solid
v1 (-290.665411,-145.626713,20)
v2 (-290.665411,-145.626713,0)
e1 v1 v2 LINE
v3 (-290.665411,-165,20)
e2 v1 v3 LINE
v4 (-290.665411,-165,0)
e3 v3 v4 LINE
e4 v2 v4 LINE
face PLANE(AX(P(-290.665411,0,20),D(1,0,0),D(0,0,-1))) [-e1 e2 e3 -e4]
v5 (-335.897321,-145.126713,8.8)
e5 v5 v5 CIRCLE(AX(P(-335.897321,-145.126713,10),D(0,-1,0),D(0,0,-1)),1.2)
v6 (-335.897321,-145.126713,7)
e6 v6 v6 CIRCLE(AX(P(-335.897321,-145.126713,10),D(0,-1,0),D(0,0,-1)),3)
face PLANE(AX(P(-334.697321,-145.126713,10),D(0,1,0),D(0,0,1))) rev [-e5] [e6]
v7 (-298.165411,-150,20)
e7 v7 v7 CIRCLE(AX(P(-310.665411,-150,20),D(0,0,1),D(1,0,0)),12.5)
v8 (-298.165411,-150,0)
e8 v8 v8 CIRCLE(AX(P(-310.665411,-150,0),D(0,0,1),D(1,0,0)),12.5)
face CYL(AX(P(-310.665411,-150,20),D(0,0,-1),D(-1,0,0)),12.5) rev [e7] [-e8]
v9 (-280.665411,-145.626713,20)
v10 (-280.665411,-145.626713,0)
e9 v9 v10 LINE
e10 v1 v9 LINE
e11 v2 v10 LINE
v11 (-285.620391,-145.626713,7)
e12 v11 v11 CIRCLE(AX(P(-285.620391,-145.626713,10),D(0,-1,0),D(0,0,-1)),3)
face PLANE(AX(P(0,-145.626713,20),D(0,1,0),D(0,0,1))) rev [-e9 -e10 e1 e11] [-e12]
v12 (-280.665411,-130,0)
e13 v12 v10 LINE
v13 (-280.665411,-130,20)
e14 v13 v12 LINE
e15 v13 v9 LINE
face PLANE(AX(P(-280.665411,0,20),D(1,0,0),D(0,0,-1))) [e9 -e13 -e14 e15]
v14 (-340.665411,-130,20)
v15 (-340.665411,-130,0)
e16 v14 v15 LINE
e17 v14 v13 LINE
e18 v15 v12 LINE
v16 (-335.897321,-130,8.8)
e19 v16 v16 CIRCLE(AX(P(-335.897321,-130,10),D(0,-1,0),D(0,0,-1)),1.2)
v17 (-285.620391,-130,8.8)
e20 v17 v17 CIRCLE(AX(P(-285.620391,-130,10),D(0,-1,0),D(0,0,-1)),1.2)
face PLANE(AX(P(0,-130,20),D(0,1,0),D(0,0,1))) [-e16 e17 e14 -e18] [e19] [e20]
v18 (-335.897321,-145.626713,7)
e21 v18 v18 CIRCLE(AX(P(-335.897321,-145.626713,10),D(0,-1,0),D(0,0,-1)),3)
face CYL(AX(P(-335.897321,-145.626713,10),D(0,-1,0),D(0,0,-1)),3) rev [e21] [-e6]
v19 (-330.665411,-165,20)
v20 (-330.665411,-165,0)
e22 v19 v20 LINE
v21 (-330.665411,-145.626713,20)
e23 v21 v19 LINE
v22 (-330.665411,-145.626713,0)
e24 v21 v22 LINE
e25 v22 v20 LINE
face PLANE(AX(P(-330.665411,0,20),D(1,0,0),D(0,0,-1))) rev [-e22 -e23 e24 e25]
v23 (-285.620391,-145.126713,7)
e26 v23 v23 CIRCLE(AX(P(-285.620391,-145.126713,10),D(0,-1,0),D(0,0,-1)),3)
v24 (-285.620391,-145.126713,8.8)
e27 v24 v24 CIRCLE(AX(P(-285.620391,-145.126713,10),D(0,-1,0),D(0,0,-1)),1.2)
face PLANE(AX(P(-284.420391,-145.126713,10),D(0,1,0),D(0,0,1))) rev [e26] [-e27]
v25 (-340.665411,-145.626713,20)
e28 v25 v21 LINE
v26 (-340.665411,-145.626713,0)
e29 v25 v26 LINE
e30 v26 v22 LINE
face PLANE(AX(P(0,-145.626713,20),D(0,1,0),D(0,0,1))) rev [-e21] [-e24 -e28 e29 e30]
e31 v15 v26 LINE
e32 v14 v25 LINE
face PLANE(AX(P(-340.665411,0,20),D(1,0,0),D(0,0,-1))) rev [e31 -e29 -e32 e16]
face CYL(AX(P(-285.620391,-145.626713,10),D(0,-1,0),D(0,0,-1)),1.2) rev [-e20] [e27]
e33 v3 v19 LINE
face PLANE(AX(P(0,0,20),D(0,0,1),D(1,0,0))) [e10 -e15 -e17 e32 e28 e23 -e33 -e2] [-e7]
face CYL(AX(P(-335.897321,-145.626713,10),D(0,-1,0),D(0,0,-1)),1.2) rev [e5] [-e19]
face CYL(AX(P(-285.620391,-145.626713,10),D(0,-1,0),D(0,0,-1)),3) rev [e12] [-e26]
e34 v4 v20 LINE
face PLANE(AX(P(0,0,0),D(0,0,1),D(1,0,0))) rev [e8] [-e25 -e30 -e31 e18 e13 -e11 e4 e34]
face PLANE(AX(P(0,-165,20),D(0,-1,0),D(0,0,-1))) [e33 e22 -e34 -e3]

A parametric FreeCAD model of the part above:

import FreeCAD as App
import Part
import Sketcher
from FreeCAD import Vector

doc = App.newDocument("Part")
body = doc.addObject("PartDesign::Body", "Body")

# Sketch on XY plane
sketch1 = doc.addObject("Sketcher::SketchObject", "Sketch")
body.addObject(sketch1)
sketch1.AttachmentSupport = (doc.XY_Plane, [""])
sketch1.MapMode = "FlatFace"
sketch1.addGeometry(Part.LineSegment(Vector(-340.665411, -145.626713, 0), Vector(-330.665411, -145.626713, 0)), False)
sketch1.addGeometry(Part.LineSegment(Vector(-330.665411, -145.626713, 0), Vector(-330.665411, -165, 0)), False)
sketch1.addGeometry(Part.LineSegment(Vector(-330.665411, -165, 0), Vector(-290.665411, -165, 0)), False)
sketch1.addGeometry(Part.LineSegment(Vector(-290.665411, -165, 0), Vector(-290.665411, -145.626713, 0)), False)
sketch1.addGeometry(Part.LineSegment(Vector(-290.665411, -145.626713, 0), Vector(-280.665411, -145.626713, 0)), False)
sketch1.addGeometry(Part.LineSegment(Vector(-280.665411, -145.626713, 0), Vector(-280.665411, -130, 0)), False)
sketch1.addGeometry(Part.LineSegment(Vector(-280.665411, -130, 0), Vector(-340.665411, -130, 0)), False)
sketch1.addGeometry(Part.LineSegment(Vector(-340.665411, -130, 0), Vector(-340.665411, -145.626713, 0)), False)
sketch1.addGeometry(Part.Circle(Vector(-310.665411, -150, 0), Vector(0, 0, 1), 12.5), False)
sketch1.addConstraint(Sketcher.Constraint("Coincident", 0, 2, 1, 1))
sketch1.addConstraint(Sketcher.Constraint("Coincident", 1, 2, 2, 1))
sketch1.addConstraint(Sketcher.Constraint("Coincident", 2, 2, 3, 1))
sketch1.addConstraint(Sketcher.Constraint("Coincident", 3, 2, 4, 1))
sketch1.addConstraint(Sketcher.Constraint("Coincident", 4, 2, 5, 1))
sketch1.addConstraint(Sketcher.Constraint("Coincident", 5, 2, 6, 1))
sketch1.addConstraint(Sketcher.Constraint("Coincident", 6, 2, 7, 1))
sketch1.addConstraint(Sketcher.Constraint("Coincident", 7, 2, 0, 1))
sketch1.addConstraint(Sketcher.Constraint("Horizontal", 0))
sketch1.addConstraint(Sketcher.Constraint("Vertical", 1))
sketch1.addConstraint(Sketcher.Constraint("Horizontal", 2))
sketch1.addConstraint(Sketcher.Constraint("Vertical", 3))
sketch1.addConstraint(Sketcher.Constraint("Horizontal", 4))
sketch1.addConstraint(Sketcher.Constraint("Vertical", 5))
sketch1.addConstraint(Sketcher.Constraint("Horizontal", 6))
sketch1.addConstraint(Sketcher.Constraint("Vertical", 7))
sketch1.addConstraint(Sketcher.Constraint("Horizontal", 0, 2, 3, 2))
sketch1.addConstraint(Sketcher.Constraint("Equal", 0, 4))
sketch1.addConstraint(Sketcher.Constraint("Diameter", 8, 25.0))
sketch1.addConstraint(Sketcher.Constraint("DistanceX", 0, 1, 0, 2, 10.0))
sketch1.addConstraint(Sketcher.Constraint("DistanceX", 2, 1, 2, 2, 40.0))
sketch1.addConstraint(Sketcher.Constraint("DistanceY", 8, 3, -1, 1, 150.0))
sketch1.addConstraint(Sketcher.Constraint("DistanceY", 1, 2, -1, 1, 165.0))
sketch1.addConstraint(Sketcher.Constraint("DistanceY", 5, 2, -1, 1, 130.0))
sketch1.addConstraint(Sketcher.Constraint("DistanceX", 0, 2, 8, 3, 20.0))
sketch1.addConstraint(Sketcher.Constraint("DistanceY", 1, 2, 1, 1, 19.373287))
sketch1.addConstraint(Sketcher.Constraint("DistanceX", 8, 3, -1, 1, 310.665411))
pad1 = doc.addObject("PartDesign::Pad", "Pad")
body.addObject(pad1)
pad1.Profile = sketch1
pad1.Length = 20

# Sketch on XZ plane
sketch2 = doc.addObject("Sketcher::SketchObject", "Sketch001")
body.addObject(sketch2)
sketch2.AttachmentSupport = (doc.XZ_Plane, [""])
sketch2.MapMode = "FlatFace"
sketch2.AttachmentOffset = App.Placement(Vector(0, 0, 145.626713), App.Rotation())
sketch2.addGeometry(Part.Circle(Vector(-335.897321, 10, 0), Vector(0, 0, 1), 1.2), False)
sketch2.addGeometry(Part.Circle(Vector(-285.620391, 10, 0), Vector(0, 0, 1), 1.2), False)
sketch2.addConstraint(Sketcher.Constraint("Equal", 0, 1))
sketch2.addConstraint(Sketcher.Constraint("Horizontal", 0, 3, 1, 3))
sketch2.addConstraint(Sketcher.Constraint("Diameter", 0, 2.4))
sketch2.addConstraint(Sketcher.Constraint("DistanceY", -1, 1, 0, 3, 10.0))
sketch2.addConstraint(Sketcher.Constraint("DistanceX", 0, 3, -1, 1, 335.897321))
sketch2.addConstraint(Sketcher.Constraint("DistanceX", 1, 3, -1, 1, 285.620391))
doc.recompute()
hole = doc.addObject("PartDesign::Hole", "Hole")
body.addObject(hole)
hole.Profile = sketch2
hole.ThreadType = "None"
hole.Diameter = 2.4
hole.DepthType = "ThroughAll"
hole.HoleCutType = "Counterbore"
hole.HoleCutDiameter = 6
hole.HoleCutDepth = 0.5

doc.recompute()
